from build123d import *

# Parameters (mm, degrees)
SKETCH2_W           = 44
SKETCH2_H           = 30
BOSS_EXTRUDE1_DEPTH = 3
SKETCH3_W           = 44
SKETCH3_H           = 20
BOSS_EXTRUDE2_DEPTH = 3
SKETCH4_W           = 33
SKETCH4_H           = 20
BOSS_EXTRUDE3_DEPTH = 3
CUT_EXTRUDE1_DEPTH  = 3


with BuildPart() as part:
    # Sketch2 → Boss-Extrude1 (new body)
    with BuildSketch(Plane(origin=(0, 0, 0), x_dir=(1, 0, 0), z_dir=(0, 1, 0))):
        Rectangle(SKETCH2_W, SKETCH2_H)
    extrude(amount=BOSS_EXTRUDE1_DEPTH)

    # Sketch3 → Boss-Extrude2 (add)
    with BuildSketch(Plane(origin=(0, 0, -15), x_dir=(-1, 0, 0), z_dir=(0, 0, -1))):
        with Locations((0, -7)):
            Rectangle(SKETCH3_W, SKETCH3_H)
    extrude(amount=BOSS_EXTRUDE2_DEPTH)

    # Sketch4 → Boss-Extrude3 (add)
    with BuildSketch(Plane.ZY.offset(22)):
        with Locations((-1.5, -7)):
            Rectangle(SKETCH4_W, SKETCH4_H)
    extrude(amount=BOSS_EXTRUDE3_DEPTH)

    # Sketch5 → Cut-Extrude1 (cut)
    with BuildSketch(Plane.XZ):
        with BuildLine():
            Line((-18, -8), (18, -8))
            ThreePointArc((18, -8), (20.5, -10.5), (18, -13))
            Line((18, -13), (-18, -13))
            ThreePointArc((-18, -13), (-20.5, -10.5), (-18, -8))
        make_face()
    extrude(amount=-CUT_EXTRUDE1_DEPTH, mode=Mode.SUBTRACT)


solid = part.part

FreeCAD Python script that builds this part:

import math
import FreeCAD as App
import Part
import Sketcher

V = App.Vector


def add_polygon(sketch, points):
    """Adds a closed chain of lines whose ends are joined by coincident constraints."""
    first, n = sketch.GeometryCount, len(points)
    for a, b in zip(points, points[1:] + points[:1]):
        sketch.addGeometry(Part.LineSegment(App.Vector(*a, 0), App.Vector(*b, 0)), False)
    for i in range(n):
        sketch.addConstraint(Sketcher.Constraint("Coincident", first + i, 2, first + (i + 1) % n, 1))

doc = App.newDocument("Part")
body = doc.addObject("PartDesign::Body", "Body")

sketch1 = doc.addObject("Sketcher::SketchObject", "Sketch")
body.addObject(sketch1)
sketch1.AttachmentSupport = (doc.XZ_Plane, [""])
sketch1.MapMode = "FlatFace"
add_polygon(sketch1, [(-22, -15), (-22, 15), (22, 15), (22, -15)])
sketch1.addConstraint(Sketcher.Constraint("Vertical", 0))
sketch1.addConstraint(Sketcher.Constraint("Horizontal", 1))
sketch1.addConstraint(Sketcher.Constraint("Vertical", 2))
sketch1.addConstraint(Sketcher.Constraint("Horizontal", 3))
sketch1.addConstraint(Sketcher.Constraint("Symmetric", 0, 2, 2, 2, -1, 1))
sketch1.addConstraint(Sketcher.Constraint("DistanceX", 1, 1, 1, 2, 44.0))
sketch1.addConstraint(Sketcher.Constraint("DistanceY", 0, 1, 0, 2, 30.0))
pad1 = doc.addObject("PartDesign::Pad", "Pad")
body.addObject(pad1)
pad1.Profile = sketch1
pad1.Length = 3
pad1.Reversed = True

sketch2 = doc.addObject("Sketcher::SketchObject", "Sketch001")
body.addObject(sketch2)
sketch2.AttachmentSupport = (doc.XY_Plane, [""])
sketch2.MapMode = "FlatFace"
sketch2.AttachmentOffset = App.Placement(V(0, 0, -15), App.Rotation())
add_polygon(sketch2, [(22, 3), (22, -17), (-22, -17), (-22, 3)])
sketch2.addConstraint(Sketcher.Constraint("Vertical", 0))
sketch2.addConstraint(Sketcher.Constraint("Horizontal", 1))
sketch2.addConstraint(Sketcher.Constraint("Vertical", 2))
sketch2.addConstraint(Sketcher.Constraint("Horizontal", 3))
sketch2.addConstraint(Sketcher.Constraint("DistanceX", 1, 2, 1, 1, 44.0))
sketch2.addConstraint(Sketcher.Constraint("DistanceY", 0, 2, 0, 1, 20.0))
sketch2.addConstraint(Sketcher.Constraint("DistanceX", -1, 1, 0, 2, 22.0))
sketch2.addConstraint(Sketcher.Constraint("DistanceY", 0, 2, -1, 1, 17.0))
pad2 = doc.addObject("PartDesign::Pad", "Pad001")
body.addObject(pad2)
pad2.Profile = sketch2
pad2.Length = 3
pad2.Reversed = True

sketch3 = doc.addObject("Sketcher::SketchObject", "Sketch002")
body.addObject(sketch3)
sketch3.AttachmentSupport = (doc.YZ_Plane, [""])
sketch3.MapMode = "FlatFace"
sketch3.AttachmentOffset = App.Placement(V(0, 0, -22), App.Rotation())
add_polygon(sketch3, [(3, -18), (-17, -18), (-17, 15), (3, 15)])
sketch3.addConstraint(Sketcher.Constraint("Horizontal", 0))
sketch3.addConstraint(Sketcher.Constraint("Vertical", 1))
sketch3.addConstraint(Sketcher.Constraint("Horizontal", 2))
sketch3.addConstraint(Sketcher.Constraint("Vertical", 3))
sketch3.addConstraint(Sketcher.Constraint("DistanceX", 0, 2, 0, 1, 20.0))
sketch3.addConstraint(Sketcher.Constraint("DistanceY", 1, 1, 1, 2, 33.0))
sketch3.addConstraint(Sketcher.Constraint("DistanceX", 0, 2, -1, 1, 17.0))
sketch3.addConstraint(Sketcher.Constraint("DistanceY", 0, 2, -1, 1, 18.0))
pad3 = doc.addObject("PartDesign::Pad", "Pad002")
body.addObject(pad3)
pad3.Profile = sketch3
pad3.Length = 3
pad3.Reversed = True

sketch4 = doc.addObject("Sketcher::SketchObject", "Sketch003")
body.addObject(sketch4)
sketch4.AttachmentSupport = (doc.XZ_Plane, [""])
sketch4.MapMode = "FlatFace"
sketch4.addGeometry(Part.LineSegment(V(18, -8, 0), V(-18, -8, 0)), False)
sketch4.addGeometry(Part.ArcOfCircle(Part.Circle(V(-18, -10.5, 0), V(0, 0, 1), 2.5), math.radians(90), math.radians(270)), False)
sketch4.addGeometry(Part.LineSegment(V(-18, -13, 0), V(18, -13, 0)), False)
sketch4.addGeometry(Part.ArcOfCircle(Part.Circle(V(18, -10.5, 0), V(0, 0, 1), 2.5), math.radians(-90), math.radians(90)), False)
sketch4.addConstraint(Sketcher.Constraint("Tangent", 0, 2, 1, 1))
sketch4.addConstraint(Sketcher.Constraint("Tangent", 1, 2, 2, 1))
sketch4.addConstraint(Sketcher.Constraint("Tangent", 2, 2, 3, 1))
sketch4.addConstraint(Sketcher.Constraint("Tangent", 3, 2, 0, 1))
sketch4.addConstraint(Sketcher.Constraint("Horizontal", 0))
sketch4.addConstraint(Sketcher.Constraint("Horizontal", 2))
sketch4.addConstraint(Sketcher.Constraint("Radius", 1, 2.5))
sketch4.addConstraint(Sketcher.Constraint("DistanceX", 0, 2, 0, 1, 36.0))
sketch4.addConstraint(Sketcher.Constraint("DistanceX", 1, 3, -1, 1, 18.0))
sketch4.addConstraint(Sketcher.Constraint("DistanceY", 0, 2, -1, 1, 8.0))
pocket1 = doc.addObject("PartDesign::Pocket", "Pocket")
body.addObject(pocket1)
pocket1.Profile = sketch4
pocket1.Length = 3

doc.recompute()
